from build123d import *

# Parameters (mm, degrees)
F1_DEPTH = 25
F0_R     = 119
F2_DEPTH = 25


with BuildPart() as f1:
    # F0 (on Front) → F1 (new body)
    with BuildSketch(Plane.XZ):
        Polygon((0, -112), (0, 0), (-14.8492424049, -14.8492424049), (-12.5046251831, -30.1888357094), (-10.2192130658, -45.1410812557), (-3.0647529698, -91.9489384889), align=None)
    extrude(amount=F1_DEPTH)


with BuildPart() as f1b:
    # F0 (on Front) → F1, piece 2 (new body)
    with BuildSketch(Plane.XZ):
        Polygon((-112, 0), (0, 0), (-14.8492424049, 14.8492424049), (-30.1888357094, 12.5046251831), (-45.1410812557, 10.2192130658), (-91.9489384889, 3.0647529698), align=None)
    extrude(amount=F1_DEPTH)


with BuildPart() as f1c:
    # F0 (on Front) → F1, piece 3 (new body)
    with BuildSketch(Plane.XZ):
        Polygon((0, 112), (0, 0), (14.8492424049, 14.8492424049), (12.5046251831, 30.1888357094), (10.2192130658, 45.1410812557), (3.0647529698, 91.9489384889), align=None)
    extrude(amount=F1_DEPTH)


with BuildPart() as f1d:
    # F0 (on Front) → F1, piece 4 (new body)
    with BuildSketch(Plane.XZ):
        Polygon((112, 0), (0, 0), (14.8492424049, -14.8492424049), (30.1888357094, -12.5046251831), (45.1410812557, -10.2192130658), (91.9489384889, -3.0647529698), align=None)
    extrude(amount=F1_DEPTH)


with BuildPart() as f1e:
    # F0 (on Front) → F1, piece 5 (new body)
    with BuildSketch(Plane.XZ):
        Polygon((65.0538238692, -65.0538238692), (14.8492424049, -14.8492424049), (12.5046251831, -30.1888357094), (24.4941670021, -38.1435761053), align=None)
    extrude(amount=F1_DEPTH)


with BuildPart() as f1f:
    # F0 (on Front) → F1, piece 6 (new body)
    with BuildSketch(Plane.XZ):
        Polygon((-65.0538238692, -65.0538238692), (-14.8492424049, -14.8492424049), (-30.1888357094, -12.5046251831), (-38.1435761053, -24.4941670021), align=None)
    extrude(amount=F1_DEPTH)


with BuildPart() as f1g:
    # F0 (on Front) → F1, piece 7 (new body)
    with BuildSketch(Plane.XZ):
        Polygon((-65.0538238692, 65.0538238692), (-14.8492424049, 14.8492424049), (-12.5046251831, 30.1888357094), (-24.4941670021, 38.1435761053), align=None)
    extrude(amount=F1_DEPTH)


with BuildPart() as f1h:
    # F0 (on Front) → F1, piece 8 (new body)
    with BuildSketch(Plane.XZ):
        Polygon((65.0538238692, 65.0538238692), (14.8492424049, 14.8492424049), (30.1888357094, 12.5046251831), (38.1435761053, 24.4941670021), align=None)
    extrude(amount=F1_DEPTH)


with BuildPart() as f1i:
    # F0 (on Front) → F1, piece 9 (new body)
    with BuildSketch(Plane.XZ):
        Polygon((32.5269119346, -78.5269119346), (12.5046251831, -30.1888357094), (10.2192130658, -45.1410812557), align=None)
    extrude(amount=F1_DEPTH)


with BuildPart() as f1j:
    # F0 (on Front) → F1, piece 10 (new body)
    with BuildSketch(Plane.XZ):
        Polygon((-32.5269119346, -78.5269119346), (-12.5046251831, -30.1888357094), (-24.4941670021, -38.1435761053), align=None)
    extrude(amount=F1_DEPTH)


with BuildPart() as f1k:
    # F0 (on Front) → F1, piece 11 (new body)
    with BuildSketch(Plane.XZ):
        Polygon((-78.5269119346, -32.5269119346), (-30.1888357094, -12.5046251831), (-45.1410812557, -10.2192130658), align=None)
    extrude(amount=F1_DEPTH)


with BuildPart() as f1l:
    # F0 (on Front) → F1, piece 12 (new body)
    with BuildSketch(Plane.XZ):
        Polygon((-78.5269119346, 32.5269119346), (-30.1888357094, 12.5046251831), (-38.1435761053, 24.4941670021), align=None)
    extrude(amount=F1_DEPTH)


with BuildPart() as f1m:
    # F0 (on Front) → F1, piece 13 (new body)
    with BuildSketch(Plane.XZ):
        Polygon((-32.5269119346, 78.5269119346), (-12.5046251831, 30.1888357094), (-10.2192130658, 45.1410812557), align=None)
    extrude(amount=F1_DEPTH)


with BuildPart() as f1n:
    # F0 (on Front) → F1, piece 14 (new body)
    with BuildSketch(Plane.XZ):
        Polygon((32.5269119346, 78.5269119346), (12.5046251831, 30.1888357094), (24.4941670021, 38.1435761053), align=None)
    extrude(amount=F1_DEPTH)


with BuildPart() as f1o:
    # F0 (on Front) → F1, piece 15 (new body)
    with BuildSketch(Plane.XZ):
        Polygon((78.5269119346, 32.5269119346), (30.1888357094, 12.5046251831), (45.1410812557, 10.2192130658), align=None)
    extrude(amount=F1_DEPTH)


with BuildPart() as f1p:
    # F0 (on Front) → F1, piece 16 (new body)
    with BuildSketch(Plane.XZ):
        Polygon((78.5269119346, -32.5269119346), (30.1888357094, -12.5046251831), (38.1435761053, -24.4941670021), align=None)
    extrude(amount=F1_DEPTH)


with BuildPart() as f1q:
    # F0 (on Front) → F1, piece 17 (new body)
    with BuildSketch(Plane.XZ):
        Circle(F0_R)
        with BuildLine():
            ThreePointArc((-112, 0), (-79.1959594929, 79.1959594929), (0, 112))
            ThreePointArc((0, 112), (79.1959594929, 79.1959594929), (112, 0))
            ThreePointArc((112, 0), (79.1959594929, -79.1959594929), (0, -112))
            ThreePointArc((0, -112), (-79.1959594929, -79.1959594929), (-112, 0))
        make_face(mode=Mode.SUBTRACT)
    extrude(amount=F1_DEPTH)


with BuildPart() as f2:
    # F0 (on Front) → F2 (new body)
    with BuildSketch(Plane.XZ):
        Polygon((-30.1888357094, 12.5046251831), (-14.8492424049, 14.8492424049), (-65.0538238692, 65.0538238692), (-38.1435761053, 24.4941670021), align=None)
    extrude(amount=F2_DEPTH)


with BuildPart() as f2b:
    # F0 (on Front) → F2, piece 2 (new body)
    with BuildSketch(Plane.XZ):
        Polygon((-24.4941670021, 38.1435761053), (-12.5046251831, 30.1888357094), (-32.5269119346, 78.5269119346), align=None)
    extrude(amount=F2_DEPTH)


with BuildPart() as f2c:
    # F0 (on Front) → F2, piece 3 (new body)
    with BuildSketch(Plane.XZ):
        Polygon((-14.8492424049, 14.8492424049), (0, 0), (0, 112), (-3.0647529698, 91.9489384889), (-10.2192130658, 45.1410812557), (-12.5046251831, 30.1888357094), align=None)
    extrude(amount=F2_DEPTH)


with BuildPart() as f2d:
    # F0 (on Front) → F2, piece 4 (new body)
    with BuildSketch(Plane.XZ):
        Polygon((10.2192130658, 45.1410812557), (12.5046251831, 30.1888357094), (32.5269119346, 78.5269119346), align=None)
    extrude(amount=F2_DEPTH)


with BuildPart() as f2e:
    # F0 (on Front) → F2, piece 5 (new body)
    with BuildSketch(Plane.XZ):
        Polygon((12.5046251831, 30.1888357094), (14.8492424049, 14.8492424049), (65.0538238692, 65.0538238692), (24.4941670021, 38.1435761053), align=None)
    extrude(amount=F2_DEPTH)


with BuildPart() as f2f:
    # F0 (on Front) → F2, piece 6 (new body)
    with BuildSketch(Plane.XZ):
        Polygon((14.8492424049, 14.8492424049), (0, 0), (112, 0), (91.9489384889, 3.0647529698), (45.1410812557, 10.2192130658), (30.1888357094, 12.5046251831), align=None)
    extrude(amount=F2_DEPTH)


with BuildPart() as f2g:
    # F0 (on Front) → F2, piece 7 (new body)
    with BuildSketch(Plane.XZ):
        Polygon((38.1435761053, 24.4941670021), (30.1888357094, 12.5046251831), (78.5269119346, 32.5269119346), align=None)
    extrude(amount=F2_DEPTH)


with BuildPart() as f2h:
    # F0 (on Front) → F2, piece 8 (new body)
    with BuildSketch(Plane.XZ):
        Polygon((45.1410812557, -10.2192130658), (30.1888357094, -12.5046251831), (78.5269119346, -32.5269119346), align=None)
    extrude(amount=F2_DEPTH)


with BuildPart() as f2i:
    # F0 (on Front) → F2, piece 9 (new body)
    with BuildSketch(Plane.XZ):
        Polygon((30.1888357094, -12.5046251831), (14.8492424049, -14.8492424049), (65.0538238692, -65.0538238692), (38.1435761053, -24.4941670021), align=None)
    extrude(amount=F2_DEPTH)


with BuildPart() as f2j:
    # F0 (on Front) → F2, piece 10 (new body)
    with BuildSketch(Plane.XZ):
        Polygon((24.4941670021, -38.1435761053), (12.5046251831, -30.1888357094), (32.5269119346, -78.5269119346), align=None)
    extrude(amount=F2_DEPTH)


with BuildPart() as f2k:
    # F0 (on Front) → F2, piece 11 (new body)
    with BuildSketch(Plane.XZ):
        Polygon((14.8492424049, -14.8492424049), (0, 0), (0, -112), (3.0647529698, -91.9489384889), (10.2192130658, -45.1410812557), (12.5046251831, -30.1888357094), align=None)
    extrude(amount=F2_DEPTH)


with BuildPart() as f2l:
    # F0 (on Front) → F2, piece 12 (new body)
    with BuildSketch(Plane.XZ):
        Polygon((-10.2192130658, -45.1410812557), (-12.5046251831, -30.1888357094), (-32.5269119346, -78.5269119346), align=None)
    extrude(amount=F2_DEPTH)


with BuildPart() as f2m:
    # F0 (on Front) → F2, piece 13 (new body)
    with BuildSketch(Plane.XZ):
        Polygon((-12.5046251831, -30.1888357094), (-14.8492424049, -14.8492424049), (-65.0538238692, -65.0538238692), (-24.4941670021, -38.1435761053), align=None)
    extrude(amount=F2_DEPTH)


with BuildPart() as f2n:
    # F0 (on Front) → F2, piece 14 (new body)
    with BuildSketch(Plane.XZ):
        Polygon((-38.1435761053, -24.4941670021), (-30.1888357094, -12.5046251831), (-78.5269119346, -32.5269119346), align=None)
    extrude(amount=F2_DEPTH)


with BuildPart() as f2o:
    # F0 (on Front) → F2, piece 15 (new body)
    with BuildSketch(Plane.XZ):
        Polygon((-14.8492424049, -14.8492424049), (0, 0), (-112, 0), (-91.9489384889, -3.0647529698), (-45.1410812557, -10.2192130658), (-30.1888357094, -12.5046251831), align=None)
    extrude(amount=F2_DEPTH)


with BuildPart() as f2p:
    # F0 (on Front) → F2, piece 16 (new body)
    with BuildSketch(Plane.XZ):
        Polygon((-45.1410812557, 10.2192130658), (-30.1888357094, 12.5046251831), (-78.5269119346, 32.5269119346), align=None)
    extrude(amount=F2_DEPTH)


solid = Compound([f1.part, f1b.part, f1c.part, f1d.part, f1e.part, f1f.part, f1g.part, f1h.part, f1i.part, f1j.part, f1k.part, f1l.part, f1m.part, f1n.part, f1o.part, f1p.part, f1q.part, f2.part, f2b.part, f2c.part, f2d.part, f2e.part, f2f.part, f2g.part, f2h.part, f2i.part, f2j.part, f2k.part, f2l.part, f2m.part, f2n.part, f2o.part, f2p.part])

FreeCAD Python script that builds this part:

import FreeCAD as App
import Part
import Sketcher

V = App.Vector
Q = App.Units.Quantity


def add_polygon(sketch, points):
    """Adds a closed chain of lines whose ends are joined by coincident constraints."""
    first, n = sketch.GeometryCount, len(points)
    for a, b in zip(points, points[1:] + points[:1]):
        sketch.addGeometry(Part.LineSegment(App.Vector(*a, 0), App.Vector(*b, 0)), False)
    for i in range(n):
        sketch.addConstraint(Sketcher.Constraint("Coincident", first + i, 2, first + (i + 1) % n, 1))

doc = App.newDocument("Part")
params = doc.addObject("Spreadsheet::Sheet", "Params")
for row, (alias, value) in enumerate([
    ("sketch1_height", "112 mm"),
    ("sketch1_length", "21 mm"),
    ("pad1_length", "25 mm"),
    ("sketch2_width", "112 mm"),
    ("sketch2_length", "21 mm"),
    ("pad2_length", "25 mm"),
    ("sketch3_height", "112 mm"),
    ("sketch3_length", "21 mm"),
    ("pad3_length", "25 mm"),
    ("sketch4_width", "112 mm"),
    ("sketch4_length", "21 mm"),
    ("pad4_length", "25 mm"),
    ("sketch5_length", "71 mm"),
    ("pad5_length", "25 mm"),
    ("sketch6_length", "71 mm"),
    ("pad6_length", "25 mm"),
    ("sketch7_length", "71 mm"),
    ("pad7_length", "25 mm"),
    ("sketch8_length", "71 mm"),
    ("pad8_length", "25 mm"),
    ("pad9_length", "25 mm"),
    ("pad10_length", "25 mm"),
    ("pad11_length", "25 mm"),
    ("pad12_length", "25 mm"),
    ("pad13_length", "25 mm"),
    ("pad14_length", "25 mm"),
    ("pad15_length", "25 mm"),
    ("pad16_length", "25 mm"),
    ("sketch17_diameter", "238 mm"),
    ("sketch17_diameter2", "224 mm"),
    ("pad17_length", "25 mm"),
    ("sketch18_length", "71 mm"),
    ("pad18_length", "25 mm"),
    ("pad19_length", "25 mm"),
    ("sketch20_height", "112 mm"),
    ("sketch20_length", "21 mm"),
    ("pad20_length", "25 mm"),
    ("pad21_length", "25 mm"),
    ("sketch22_length", "71 mm"),
    ("pad22_length", "25 mm"),
    ("sketch23_width", "112 mm"),
    ("sketch23_length", "21 mm"),
    ("pad23_length", "25 mm"),
    ("pad24_length", "25 mm"),
    ("pad25_length", "25 mm"),
    ("sketch26_length", "71 mm"),
    ("pad26_length", "25 mm"),
    ("pad27_length", "25 mm"),
    ("sketch28_height", "112 mm"),
    ("sketch28_length", "21 mm"),
    ("pad28_length", "25 mm"),
    ("pad29_length", "25 mm"),
    ("sketch30_length", "71 mm"),
    ("pad30_length", "25 mm"),
    ("pad31_length", "25 mm"),
    ("sketch32_width", "112 mm"),
    ("sketch32_length", "21 mm"),
    ("pad32_length", "25 mm"),
    ("pad33_length", "25 mm"),
], start=1):
    params.set(f"A{row}", alias)
    params.set(f"B{row}", "=" + value)
    params.setAlias(f"B{row}", alias)

body = doc.addObject("PartDesign::Body", "Body")

sketch1 = body.newObject("Sketcher::SketchObject", "Sketch")
sketch1.AttachmentSupport = (doc.getObject("XZ_Plane"), [""])
sketch1.MapMode = "FlatFace"
add_polygon(sketch1, [(0, -112), (0, 0), (-15, -15), (-10, -45), (-3, -92)])
sketch1.addConstraint([
    Sketcher.Constraint("Vertical", 0),
    Sketcher.Constraint("Coincident", 0, 2, -1, 1),
    Sketcher.Constraint("Parallel", 2, 3),
    Sketcher.Constraint("Parallel", 3, 4),
    Sketcher.Constraint("DistanceY", 0, 1, 0, 2, 112.0),
    Sketcher.Constraint("Angle", 1, Q("-135 deg")),
    Sketcher.Constraint("Distance", 1, 21.0),
    Sketcher.Constraint("Distance", 2, 30.64364),
    Sketcher.Constraint("Distance", 3, 47.351471),
])
sketch1.setExpression("Constraints[9]", "Params.sketch1_height")
sketch1.setExpression("Constraints[11]", "Params.sketch1_length")
pad1 = body.newObject("PartDesign::Pad", "Pad")
pad1.Profile = sketch1
pad1.setExpression("Length", "Params.pad1_length")
body2 = doc.addObject("PartDesign::Body", "Body001")

sketch2 = body2.newObject("Sketcher::SketchObject", "Sketch001")
sketch2.AttachmentSupport = (doc.getObject("XZ_Plane001"), [""])
sketch2.MapMode = "FlatFace"
add_polygon(sketch2, [(-112, 0), (0, 0), (-15, 15), (-45, 10), (-92, 3)])
sketch2.addConstraint([
    Sketcher.Constraint("Horizontal", 0),
    Sketcher.Constraint("Coincident", 0, 2, -1, 1),
    Sketcher.Constraint("Parallel", 2, 3),
    Sketcher.Constraint("Parallel", 3, 4),
    Sketcher.Constraint("DistanceX", 0, 1, 0, 2, 112.0),
    Sketcher.Constraint("Angle", 1, Q("135 deg")),
    Sketcher.Constraint("Distance", 1, 21.0),
    Sketcher.Constraint("Distance", 2, 30.64364),
    Sketcher.Constraint("Distance", 3, 47.351471),
])
sketch2.setExpression("Constraints[9]", "Params.sketch2_width")
sketch2.setExpression("Constraints[11]", "Params.sketch2_length")
pad2 = body2.newObject("PartDesign::Pad", "Pad001")
pad2.Profile = sketch2
pad2.setExpression("Length", "Params.pad2_length")
body3 = doc.addObject("PartDesign::Body", "Body002")

sketch3 = body3.newObject("Sketcher::SketchObject", "Sketch002")
sketch3.AttachmentSupport = (doc.getObject("XZ_Plane002"), [""])
sketch3.MapMode = "FlatFace"
add_polygon(sketch3, [(0, 112), (0, 0), (15, 15), (10, 45), (3, 92)])
sketch3.addConstraint([
    Sketcher.Constraint("Vertical", 0),
    Sketcher.Constraint("Coincident", 0, 2, -1, 1),
    Sketcher.Constraint("Parallel", 2, 3),
    Sketcher.Constraint("Parallel", 3, 4),
    Sketcher.Constraint("DistanceY", 0, 2, 0, 1, 112.0),
    Sketcher.Constraint("Angle", 1, Q("45 deg")),
    Sketcher.Constraint("Distance", 1, 21.0),
    Sketcher.Constraint("Distance", 2, 30.64364),
    Sketcher.Constraint("Distance", 3, 47.351471),
])
sketch3.setExpression("Constraints[9]", "Params.sketch3_height")
sketch3.setExpression("Constraints[11]", "Params.sketch3_length")
pad3 = body3.newObject("PartDesign::Pad", "Pad002")
pad3.Profile = sketch3
pad3.setExpression("Length", "Params.pad3_length")
body4 = doc.addObject("PartDesign::Body", "Body003")

sketch4 = body4.newObject("Sketcher::SketchObject", "Sketch003")
sketch4.AttachmentSupport = (doc.getObject("XZ_Plane003"), [""])
sketch4.MapMode = "FlatFace"
add_polygon(sketch4, [(112, 0), (0, 0), (15, -15), (45, -10), (92, -3)])
sketch4.addConstraint([
    Sketcher.Constraint("Horizontal", 0),
    Sketcher.Constraint("Coincident", 0, 2, -1, 1),
    Sketcher.Constraint("Parallel", 2, 3),
    Sketcher.Constraint("Parallel", 3, 4),
    Sketcher.Constraint("DistanceX", 0, 2, 0, 1, 112.0),
    Sketcher.Constraint("Angle", 1, Q("-45 deg")),
    Sketcher.Constraint("Distance", 1, 21.0),
    Sketcher.Constraint("Distance", 2, 30.64364),
    Sketcher.Constraint("Distance", 3, 47.351471),
])
sketch4.setExpression("Constraints[9]", "Params.sketch4_width")
sketch4.setExpression("Constraints[11]", "Params.sketch4_length")
pad4 = body4.newObject("PartDesign::Pad", "Pad003")
pad4.Profile = sketch4
pad4.setExpression("Length", "Params.pad4_length")
body5 = doc.addObject("PartDesign::Body", "Body004")

sketch5 = body5.newObject("Sketcher::SketchObject", "Sketch004")
sketch5.AttachmentSupport = (doc.getObject("XZ_Plane004"), [""])
sketch5.MapMode = "FlatFace"
add_polygon(sketch5, [(65, -65), (15, -15), (13, -30)])
sketch5.addConstraint([
    Sketcher.Constraint("Angle", 0, Q("135 deg")),
    Sketcher.Constraint("Distance", 0, 71.0),
    Sketcher.Constraint("DistanceX", 1, 2, 2, 2, 52.549199),
    Sketcher.Constraint("DistanceY", 2, 2, 1, 2, 34.864988),
    Sketcher.Constraint("DistanceX", -1, 1, 0, 2, 14.849242),
    Sketcher.Constraint("DistanceY", 0, 2, -1, 1, 14.849242),
])
sketch5.setExpression("Constraints[4]", "Params.sketch5_length")
pad5 = body5.newObject("PartDesign::Pad", "Pad004")
pad5.Profile = sketch5
pad5.setExpression("Length", "Params.pad5_length")
body6 = doc.addObject("PartDesign::Body", "Body005")

sketch6 = body6.newObject("Sketcher::SketchObject", "Sketch005")
sketch6.AttachmentSupport = (doc.getObject("XZ_Plane005"), [""])
sketch6.MapMode = "FlatFace"
add_polygon(sketch6, [(-65, -65), (-15, -15), (-30, -13)])
sketch6.addConstraint([
    Sketcher.Constraint("Angle", 0, Q("45 deg")),
    Sketcher.Constraint("Distance", 0, 71.0),
    Sketcher.Constraint("DistanceY", 2, 2, 1, 2, 52.549199),
    Sketcher.Constraint("DistanceX", 2, 2, 1, 2, 34.864988),
    Sketcher.Constraint("DistanceX", 0, 2, -1, 1, 14.849242),
    Sketcher.Constraint("DistanceY", 0, 2, -1, 1, 14.849242),
])
sketch6.setExpression("Constraints[4]", "Params.sketch6_length")
pad6 = body6.newObject("PartDesign::Pad", "Pad005")
pad6.Profile = sketch6
pad6.setExpression("Length", "Params.pad6_length")
body7 = doc.addObject("PartDesign::Body", "Body006")

sketch7 = body7.newObject("Sketcher::SketchObject", "Sketch006")
sketch7.AttachmentSupport = (doc.getObject("XZ_Plane006"), [""])
sketch7.MapMode = "FlatFace"
add_polygon(sketch7, [(-65, 65), (-15, 15), (-13, 30)])
sketch7.addConstraint([
    Sketcher.Constraint("Angle", 0, Q("-45 deg")),
    Sketcher.Constraint("Distance", 0, 71.0),
    Sketcher.Constraint("DistanceX", 2, 2, 1, 2, 52.549199),
    Sketcher.Constraint("DistanceY", 1, 2, 2, 2, 34.864988),
    Sketcher.Constraint("DistanceX", 0, 2, -1, 1, 14.849242),
    Sketcher.Constraint("DistanceY", -1, 1, 0, 2, 14.849242),
])
sketch7.setExpression("Constraints[4]", "Params.sketch7_length")
pad7 = body7.newObject("PartDesign::Pad", "Pad006")
pad7.Profile = sketch7
pad7.setExpression("Length", "Params.pad7_length")
body8 = doc.addObject("PartDesign::Body", "Body007")

sketch8 = body8.newObject("Sketcher::SketchObject", "Sketch007")
sketch8.AttachmentSupport = (doc.getObject("XZ_Plane007"), [""])
sketch8.MapMode = "FlatFace"
add_polygon(sketch8, [(65, 65), (15, 15), (30, 13)])
sketch8.addConstraint([
    Sketcher.Constraint("Angle", 0, Q("-135 deg")),
    Sketcher.Constraint("Distance", 0, 71.0),
    Sketcher.Constraint("DistanceY", 1, 2, 2, 2, 52.549199),
    Sketcher.Constraint("DistanceX", 1, 2, 2, 2, 34.864988),
    Sketcher.Constraint("DistanceX", -1, 1, 0, 2, 14.849242),
    Sketcher.Constraint("DistanceY", -1, 1, 0, 2, 14.849242),
])
sketch8.setExpression("Constraints[4]", "Params.sketch8_length")
pad8 = body8.newObject("PartDesign::Pad", "Pad007")
pad8.Profile = sketch8
pad8.setExpression("Length", "Params.pad8_length")
body9 = doc.addObject("PartDesign::Body", "Body008")

sketch9 = body9.newObject("Sketcher::SketchObject", "Sketch008")
sketch9.AttachmentSupport = (doc.getObject("XZ_Plane008"), [""])
sketch9.MapMode = "FlatFace"
add_polygon(sketch9, [(33, -79), (13, -30), (10, -45)])
sketch9.addConstraint([
    Sketcher.Constraint("Angle", 0, Q("112.5 deg")),
    Sketcher.Constraint("Angle", 2, Q("-56.25 deg")),
    Sketcher.Constraint("DistanceX", 1, 2, 2, 2, 22.307699),
    Sketcher.Constraint("DistanceY", 1, 2, -1, 1, 45.141081),
    Sketcher.Constraint("DistanceX", -1, 1, 2, 2, 32.526912),
    Sketcher.Constraint("Distance", 0, 52.320757),
])
pad9 = body9.newObject("PartDesign::Pad", "Pad008")
pad9.Profile = sketch9
pad9.setExpression("Length", "Params.pad9_length")
body10 = doc.addObject("PartDesign::Body", "Body009")

sketch10 = body10.newObject("Sketcher::SketchObject", "Sketch009")
sketch10.AttachmentSupport = (doc.getObject("XZ_Plane009"), [""])
sketch10.MapMode = "FlatFace"
add_polygon(sketch10, [(-33, -79), (-13, -30), (-24, -38)])
sketch10.addConstraint([
    Sketcher.Constraint("Angle", 0, Q("67.5 deg")),
    Sketcher.Constraint("Angle", 2, Q("-101.25 deg")),
    Sketcher.Constraint("DistanceX", 2, 2, -1, 1, 32.526912),
    Sketcher.Constraint("DistanceY", 2, 2, -1, 1, 78.526912),
    Sketcher.Constraint("DistanceX", 1, 2, 0, 2, 11.989542),
    Sketcher.Constraint("DistanceY", 1, 2, 0, 2, 7.95474),
])
pad10 = body10.newObject("PartDesign::Pad", "Pad009")
pad10.Profile = sketch10
pad10.setExpression("Length", "Params.pad10_length")
body11 = doc.addObject("PartDesign::Body", "Body010")

sketch11 = body11.newObject("Sketcher::SketchObject", "Sketch010")
sketch11.AttachmentSupport = (doc.getObject("XZ_Plane010"), [""])
sketch11.MapMode = "FlatFace"
add_polygon(sketch11, [(-79, -33), (-30, -13), (-45, -10)])
sketch11.addConstraint([
    Sketcher.Constraint("Angle", 0, Q("22.5 deg")),
    Sketcher.Constraint("Angle", 2, Q("-146.25 deg")),
    Sketcher.Constraint("DistanceY", 2, 2, 1, 2, 22.307699),
    Sketcher.Constraint("DistanceX", 1, 2, -1, 1, 45.141081),
    Sketcher.Constraint("DistanceY", 2, 2, -1, 1, 32.526912),
    Sketcher.Constraint("Distance", 0, 52.320757),
])
pad11 = body11.newObject("PartDesign::Pad", "Pad010")
pad11.Profile = sketch11
pad11.setExpression("Length", "Params.pad11_length")
body12 = doc.addObject("PartDesign::Body", "Body011")

sketch12 = body12.newObject("Sketcher::SketchObject", "Sketch011")
sketch12.AttachmentSupport = (doc.getObject("XZ_Plane011"), [""])
sketch12.MapMode = "FlatFace"
add_polygon(sketch12, [(-79, 33), (-30, 13), (-38, 24)])
sketch12.addConstraint([
    Sketcher.Constraint("Angle", 0, Q("-22.5 deg")),
    Sketcher.Constraint("Angle", 2, Q("168.75 deg")),
    Sketcher.Constraint("DistanceX", 2, 2, -1, 1, 78.526912),
    Sketcher.Constraint("DistanceY", -1, 1, 2, 2, 32.526912),
    Sketcher.Constraint("DistanceX", 1, 2, 0, 2, 7.95474),
    Sketcher.Constraint("DistanceY", 0, 2, 1, 2, 11.989542),
])
pad12 = body12.newObject("PartDesign::Pad", "Pad011")
pad12.Profile = sketch12
pad12.setExpression("Length", "Params.pad12_length")
body13 = doc.addObject("PartDesign::Body", "Body012")

sketch13 = body13.newObject("Sketcher::SketchObject", "Sketch012")
sketch13.AttachmentSupport = (doc.getObject("XZ_Plane012"), [""])
sketch13.MapMode = "FlatFace"
add_polygon(sketch13, [(-33, 79), (-13, 30), (-10, 45)])
sketch13.addConstraint([
    Sketcher.Constraint("Angle", 0, Q("-67.5 deg")),
    Sketcher.Constraint("Angle", 2, Q("123.75 deg")),
    Sketcher.Constraint("DistanceX", 2, 2, 1, 2, 22.307699),
    Sketcher.Constraint("DistanceY", -1, 1, 1, 2, 45.141081),
    Sketcher.Constraint("DistanceX", 2, 2, -1, 1, 32.526912),
    Sketcher.Constraint("Distance", 0, 52.320757),
])
pad13 = body13.newObject("PartDesign::Pad", "Pad012")
pad13.Profile = sketch13
pad13.setExpression("Length", "Params.pad13_length")
body14 = doc.addObject("PartDesign::Body", "Body013")

sketch14 = body14.newObject("Sketcher::SketchObject", "Sketch013")
sketch14.AttachmentSupport = (doc.getObject("XZ_Plane013"), [""])
sketch14.MapMode = "FlatFace"
add_polygon(sketch14, [(33, 79), (13, 30), (24, 38)])
sketch14.addConstraint([
    Sketcher.Constraint("Angle", 0, Q("-112.5 deg")),
    Sketcher.Constraint("Angle", 2, Q("78.75 deg")),
    Sketcher.Constraint("DistanceX", -1, 1, 2, 2, 32.526912),
    Sketcher.Constraint("DistanceY", -1, 1, 2, 2, 78.526912),
    Sketcher.Constraint("DistanceX", 0, 2, 1, 2, 11.989542),
    Sketcher.Constraint("DistanceY", 0, 2, 1, 2, 7.95474),
])
pad14 = body14.newObject("PartDesign::Pad", "Pad013")
pad14.Profile = sketch14
pad14.setExpression("Length", "Params.pad14_length")
body15 = doc.addObject("PartDesign::Body", "Body014")

sketch15 = body15.newObject("Sketcher::SketchObject", "Sketch014")
sketch15.AttachmentSupport = (doc.getObject("XZ_Plane014"), [""])
sketch15.MapMode = "FlatFace"
add_polygon(sketch15, [(79, 33), (30, 13), (45, 10)])
sketch15.addConstraint([
    Sketcher.Constraint("Angle", 0, Q("-157.5 deg")),
    Sketcher.Constraint("Angle", 2, Q("33.75 deg")),
    Sketcher.Constraint("DistanceY", 1, 2, 2, 2, 22.307699),
    Sketcher.Constraint("DistanceX", -1, 1, 1, 2, 45.141081),
    Sketcher.Constraint("DistanceY", -1, 1, 2, 2, 32.526912),
    Sketcher.Constraint("Distance", 0, 52.320757),
])
pad15 = body15.newObject("PartDesign::Pad", "Pad014")
pad15.Profile = sketch15
pad15.setExpression("Length", "Params.pad15_length")
body16 = doc.addObject("PartDesign::Body", "Body015")

sketch16 = body16.newObject("Sketcher::SketchObject", "Sketch015")
sketch16.AttachmentSupport = (doc.getObject("XZ_Plane015"), [""])
sketch16.MapMode = "FlatFace"
add_polygon(sketch16, [(79, -33), (30, -13), (38, -24)])
sketch16.addConstraint([
    Sketcher.Constraint("Angle", 0, Q("157.5 deg")),
    Sketcher.Constraint("Angle", 2, Q("-11.25 deg")),
    Sketcher.Constraint("DistanceX", -1, 1, 2, 2, 78.526912),
    Sketcher.Constraint("DistanceY", 2, 2, -1, 1, 32.526912),
    Sketcher.Constraint("DistanceX", 0, 2, 1, 2, 7.95474),
    Sketcher.Constraint("DistanceY", 1, 2, 0, 2, 11.989542),
])
pad16 = body16.newObject("PartDesign::Pad", "Pad015")
pad16.Profile = sketch16
pad16.setExpression("Length", "Params.pad16_length")
body17 = doc.addObject("PartDesign::Body", "Body016")

sketch17 = body17.newObject("Sketcher::SketchObject", "Sketch016")
sketch17.AttachmentSupport = (doc.getObject("XZ_Plane016"), [""])
sketch17.MapMode = "FlatFace"
sketch17.addGeometry([
    Part.Circle(V(0, 0, 0), V(0, 0, 1), 119),
    Part.Circle(V(0, 0, 0), V(0, 0, 1), 112),
], False)
sketch17.addConstraint([
    Sketcher.Constraint("Coincident", 0, 3, -1, 1),
    Sketcher.Constraint("Coincident", 1, 3, -1, 1),
    Sketcher.Constraint("Diameter", 0, 238.0),
    Sketcher.Constraint("Diameter", 1, 224.0),
])
sketch17.setExpression("Constraints[2]", "Params.sketch17_diameter")
sketch17.setExpression("Constraints[3]", "Params.sketch17_diameter2")
pad17 = body17.newObject("PartDesign::Pad", "Pad016")
pad17.Profile = sketch17
pad17.setExpression("Length", "Params.pad17_length")
body18 = doc.addObject("PartDesign::Body", "Body017")

sketch18 = body18.newObject("Sketcher::SketchObject", "Sketch017")
sketch18.AttachmentSupport = (doc.getObject("XZ_Plane017"), [""])
sketch18.MapMode = "FlatFace"
add_polygon(sketch18, [(-30, 13), (-15, 15), (-65, 65)])
sketch18.addConstraint([
    Sketcher.Constraint("Angle", 1, Q("135 deg")),
    Sketcher.Constraint("Distance", 1, 71.0),
    Sketcher.Constraint("DistanceY", 2, 2, 1, 2, 52.549199),
    Sketcher.Constraint("DistanceX", 1, 2, 2, 2, 34.864988),
    Sketcher.Constraint("DistanceX", 0, 2, -1, 1, 14.849242),
    Sketcher.Constraint("DistanceY", -1, 1, 0, 2, 14.849242),
])
sketch18.setExpression("Constraints[4]", "Params.sketch18_length")
pad18 = body18.newObject("PartDesign::Pad", "Pad017")
pad18.Profile = sketch18
pad18.setExpression("Length", "Params.pad18_length")
body19 = doc.addObject("PartDesign::Body", "Body018")

sketch19 = body19.newObject("Sketcher::SketchObject", "Sketch018")
sketch19.AttachmentSupport = (doc.getObject("XZ_Plane018"), [""])
sketch19.MapMode = "FlatFace"
add_polygon(sketch19, [(-24, 38), (-13, 30), (-33, 79)])
sketch19.addConstraint([
    Sketcher.Constraint("Angle", 1, Q("112.5 deg")),
    Sketcher.Constraint("Angle", 2, Q("-78.75 deg")),
    Sketcher.Constraint("DistanceX", 1, 2, -1, 1, 32.526912),
    Sketcher.Constraint("DistanceY", -1, 1, 1, 2, 78.526912),
    Sketcher.Constraint("DistanceX", 2, 2, 0, 2, 11.989542),
    Sketcher.Constraint("DistanceY", 0, 2, 2, 2, 7.95474),
])
pad19 = body19.newObject("PartDesign::Pad", "Pad018")
pad19.Profile = sketch19
pad19.setExpression("Length", "Params.pad19_length")
body20 = doc.addObject("PartDesign::Body", "Body019")

sketch20 = body20.newObject("Sketcher::SketchObject", "Sketch019")
sketch20.AttachmentSupport = (doc.getObject("XZ_Plane019"), [""])
sketch20.MapMode = "FlatFace"
add_polygon(sketch20, [(-15, 15), (0, 0), (0, 112), (-3, 92), (-10, 45)])
sketch20.addConstraint([
    Sketcher.Constraint("Vertical", 1),
    Sketcher.Constraint("Coincident", 0, 2, -1, 1),
    Sketcher.Constraint("Parallel", 2, 3),
    Sketcher.Constraint("Parallel", 3, 4),
    Sketcher.Constraint("DistanceY", 1, 1, 1, 2, 112.0),
    Sketcher.Constraint("Angle", 0, Q("-45 deg")),
    Sketcher.Constraint("Distance", 0, 21.0),
    Sketcher.Constraint("Distance", 2, 20.283929),
    Sketcher.Constraint("Distance", 3, 47.351471),
])
sketch20.setExpression("Constraints[9]", "Params.sketch20_height")
sketch20.setExpression("Constraints[11]", "Params.sketch20_length")
pad20 = body20.newObject("PartDesign::Pad", "Pad019")
pad20.Profile = sketch20
pad20.setExpression("Length", "Params.pad20_length")
body21 = doc.addObject("PartDesign::Body", "Body020")

sketch21 = body21.newObject("Sketcher::SketchObject", "Sketch020")
sketch21.AttachmentSupport = (doc.getObject("XZ_Plane020"), [""])
sketch21.MapMode = "FlatFace"
add_polygon(sketch21, [(10, 45), (13, 30), (33, 79)])
sketch21.addConstraint([
    Sketcher.Constraint("Angle", 1, Q("67.5 deg")),
    Sketcher.Constraint("Angle", 2, Q("-123.75 deg")),
    Sketcher.Constraint("DistanceX", 2, 2, 1, 2, 22.307699),
    Sketcher.Constraint("DistanceX", -1, 1, 1, 2, 32.526912),
    Sketcher.Constraint("DistanceY", -1, 1, 1, 2, 78.526912),
    Sketcher.Constraint("Distance", 0, 15.125897),
])
pad21 = body21.newObject("PartDesign::Pad", "Pad020")
pad21.Profile = sketch21
pad21.setExpression("Length", "Params.pad21_length")
body22 = doc.addObject("PartDesign::Body", "Body021")

sketch22 = body22.newObject("Sketcher::SketchObject", "Sketch021")
sketch22.AttachmentSupport = (doc.getObject("XZ_Plane021"), [""])
sketch22.MapMode = "FlatFace"
add_polygon(sketch22, [(13, 30), (15, 15), (65, 65)])
sketch22.addConstraint([
    Sketcher.Constraint("Angle", 1, Q("45 deg")),
    Sketcher.Constraint("Distance", 1, 71.0),
    Sketcher.Constraint("DistanceX", 2, 2, 1, 2, 52.549199),
    Sketcher.Constraint("DistanceY", 2, 2, 1, 2, 34.864988),
    Sketcher.Constraint("DistanceX", -1, 1, 0, 2, 14.849242),
    Sketcher.Constraint("DistanceY", -1, 1, 0, 2, 14.849242),
])
sketch22.setExpression("Constraints[4]", "Params.sketch22_length")
pad22 = body22.newObject("PartDesign::Pad", "Pad021")
pad22.Profile = sketch22
pad22.setExpression("Length", "Params.pad22_length")
body23 = doc.addObject("PartDesign::Body", "Body022")

sketch23 = body23.newObject("Sketcher::SketchObject", "Sketch022")
sketch23.AttachmentSupport = (doc.getObject("XZ_Plane022"), [""])
sketch23.MapMode = "FlatFace"
add_polygon(sketch23, [(15, 15), (0, 0), (112, 0), (92, 3), (45, 10)])
sketch23.addConstraint([
    Sketcher.Constraint("Horizontal", 1),
    Sketcher.Constraint("Coincident", 0, 2, -1, 1),
    Sketcher.Constraint("Parallel", 2, 3),
    Sketcher.Constraint("Parallel", 3, 4),
    Sketcher.Constraint("DistanceX", 1, 1, 1, 2, 112.0),
    Sketcher.Constraint("Angle", 0, Q("-135 deg")),
    Sketcher.Constraint("Distance", 0, 21.0),
    Sketcher.Constraint("Distance", 2, 20.283929),
    Sketcher.Constraint("Distance", 3, 47.351471),
])
sketch23.setExpression("Constraints[9]", "Params.sketch23_width")
sketch23.setExpression("Constraints[11]", "Params.sketch23_length")
pad23 = body23.newObject("PartDesign::Pad", "Pad022")
pad23.Profile = sketch23
pad23.setExpression("Length", "Params.pad23_length")
body24 = doc.addObject("PartDesign::Body", "Body023")

sketch24 = body24.newObject("Sketcher::SketchObject", "Sketch023")
sketch24.AttachmentSupport = (doc.getObject("XZ_Plane023"), [""])
sketch24.MapMode = "FlatFace"
add_polygon(sketch24, [(38, 24), (30, 13), (79, 33)])
sketch24.addConstraint([
    Sketcher.Constraint("Angle", 1, Q("22.5 deg")),
    Sketcher.Constraint("Angle", 2, Q("-168.75 deg")),
    Sketcher.Constraint("DistanceX", -1, 1, 1, 2, 78.526912),
    Sketcher.Constraint("DistanceY", -1, 1, 1, 2, 32.526912),
    Sketcher.Constraint("DistanceX", 0, 2, 2, 2, 7.95474),
    Sketcher.Constraint("DistanceY", 0, 2, 2, 2, 11.989542),
])
pad24 = body24.newObject("PartDesign::Pad", "Pad023")
pad24.Profile = sketch24
pad24.setExpression("Length", "Params.pad24_length")
body25 = doc.addObject("PartDesign::Body", "Body024")

sketch25 = body25.newObject("Sketcher::SketchObject", "Sketch024")
sketch25.AttachmentSupport = (doc.getObject("XZ_Plane024"), [""])
sketch25.MapMode = "FlatFace"
add_polygon(sketch25, [(45, -10), (30, -13), (79, -33)])
sketch25.addConstraint([
    Sketcher.Constraint("Angle", 1, Q("-22.5 deg")),
    Sketcher.Constraint("Angle", 2, Q("146.25 deg")),
    Sketcher.Constraint("DistanceY", 1, 2, 2, 2, 22.307699),
    Sketcher.Constraint("DistanceX", -1, 1, 1, 2, 78.526912),
    Sketcher.Constraint("DistanceY", 1, 2, -1, 1, 32.526912),
    Sketcher.Constraint("Distance", 0, 15.125897),
])
pad25 = body25.newObject("PartDesign::Pad", "Pad024")
pad25.Profile = sketch25
pad25.setExpression("Length", "Params.pad25_length")
body26 = doc.addObject("PartDesign::Body", "Body025")

sketch26 = body26.newObject("Sketcher::SketchObject", "Sketch025")
sketch26.AttachmentSupport = (doc.getObject("XZ_Plane025"), [""])
sketch26.MapMode = "FlatFace"
add_polygon(sketch26, [(30, -13), (15, -15), (65, -65)])
sketch26.addConstraint([
    Sketcher.Constraint("Angle", 1, Q("-45 deg")),
    Sketcher.Constraint("Distance", 1, 71.0),
    Sketcher.Constraint("DistanceY", 1, 2, 2, 2, 52.549199),
    Sketcher.Constraint("DistanceX", 2, 2, 1, 2, 34.864988),
    Sketcher.Constraint("DistanceX", -1, 1, 0, 2, 14.849242),
    Sketcher.Constraint("DistanceY", 0, 2, -1, 1, 14.849242),
])
sketch26.setExpression("Constraints[4]", "Params.sketch26_length")
pad26 = body26.newObject("PartDesign::Pad", "Pad025")
pad26.Profile = sketch26
pad26.setExpression("Length", "Params.pad26_length")
body27 = doc.addObject("PartDesign::Body", "Body026")

sketch27 = body27.newObject("Sketcher::SketchObject", "Sketch026")
sketch27.AttachmentSupport = (doc.getObject("XZ_Plane026"), [""])
sketch27.MapMode = "FlatFace"
add_polygon(sketch27, [(24, -38), (13, -30), (33, -79)])
sketch27.addConstraint([
    Sketcher.Constraint("Angle", 1, Q("-67.5 deg")),
    Sketcher.Constraint("Angle", 2, Q("101.25 deg")),
    Sketcher.Constraint("DistanceX", -1, 1, 1, 2, 32.526912),
    Sketcher.Constraint("DistanceY", 1, 2, -1, 1, 78.526912),
    Sketcher.Constraint("DistanceX", 0, 2, 2, 2, 11.989542),
    Sketcher.Constraint("DistanceY", 2, 2, 0, 2, 7.95474),
])
pad27 = body27.newObject("PartDesign::Pad", "Pad026")
pad27.Profile = sketch27
pad27.setExpression("Length", "Params.pad27_length")
body28 = doc.addObject("PartDesign::Body", "Body027")

sketch28 = body28.newObject("Sketcher::SketchObject", "Sketch027")
sketch28.AttachmentSupport = (doc.getObject("XZ_Plane027"), [""])
sketch28.MapMode = "FlatFace"
add_polygon(sketch28, [(15, -15), (0, 0), (0, -112), (3, -92), (10, -45)])
sketch28.addConstraint([
    Sketcher.Constraint("Vertical", 1),
    Sketcher.Constraint("Coincident", 0, 2, -1, 1),
    Sketcher.Constraint("Parallel", 2, 3),
    Sketcher.Constraint("Parallel", 3, 4),
    Sketcher.Constraint("DistanceY", 1, 2, 1, 1, 112.0),
    Sketcher.Constraint("Angle", 0, Q("135 deg")),
    Sketcher.Constraint("Distance", 0, 21.0),
    Sketcher.Constraint("Distance", 2, 20.283929),
    Sketcher.Constraint("Distance", 3, 47.351471),
])
sketch28.setExpression("Constraints[9]", "Params.sketch28_height")
sketch28.setExpression("Constraints[11]", "Params.sketch28_length")
pad28 = body28.newObject("PartDesign::Pad", "Pad027")
pad28.Profile = sketch28
pad28.setExpression("Length", "Params.pad28_length")
body29 = doc.addObject("PartDesign::Body", "Body028")

sketch29 = body29.newObject("Sketcher::SketchObject", "Sketch028")
sketch29.AttachmentSupport = (doc.getObject("XZ_Plane028"), [""])
sketch29.MapMode = "FlatFace"
add_polygon(sketch29, [(-10, -45), (-13, -30), (-33, -79)])
sketch29.addConstraint([
    Sketcher.Constraint("Angle", 1, Q("-112.5 deg")),
    Sketcher.Constraint("Angle", 2, Q("56.25 deg")),
    Sketcher.Constraint("DistanceX", 1, 2, 2, 2, 22.307699),
    Sketcher.Constraint("DistanceX", 1, 2, -1, 1, 32.526912),
    Sketcher.Constraint("DistanceY", 1, 2, -1, 1, 78.526912),
    Sketcher.Constraint("Distance", 0, 15.125897),
])
pad29 = body29.newObject("PartDesign::Pad", "Pad028")
pad29.Profile = sketch29
pad29.setExpression("Length", "Params.pad29_length")
body30 = doc.addObject("PartDesign::Body", "Body029")

sketch30 = body30.newObject("Sketcher::SketchObject", "Sketch029")
sketch30.AttachmentSupport = (doc.getObject("XZ_Plane029"), [""])
sketch30.MapMode = "FlatFace"
add_polygon(sketch30, [(-13, -30), (-15, -15), (-65, -65)])
sketch30.addConstraint([
    Sketcher.Constraint("Angle", 1, Q("-135 deg")),
    Sketcher.Constraint("Distance", 1, 71.0),
    Sketcher.Constraint("DistanceX", 1, 2, 2, 2, 52.549199),
    Sketcher.Constraint("DistanceY", 1, 2, 2, 2, 34.864988),
    Sketcher.Constraint("DistanceX", 0, 2, -1, 1, 14.849242),
    Sketcher.Constraint("DistanceY", 0, 2, -1, 1, 14.849242),
])
sketch30.setExpression("Constraints[4]", "Params.sketch30_length")
pad30 = body30.newObject("PartDesign::Pad", "Pad029")
pad30.Profile = sketch30
pad30.setExpression("Length", "Params.pad30_length")
body31 = doc.addObject("PartDesign::Body", "Body030")

sketch31 = body31.newObject("Sketcher::SketchObject", "Sketch030")
sketch31.AttachmentSupport = (doc.getObject("XZ_Plane030"), [""])
sketch31.MapMode = "FlatFace"
add_polygon(sketch31, [(-38, -24), (-30, -13), (-79, -33)])
sketch31.addConstraint([
    Sketcher.Constraint("Angle", 1, Q("-157.5 deg")),
    Sketcher.Constraint("Angle", 2, Q("11.25 deg")),
    Sketcher.Constraint("DistanceX", 1, 2, -1, 1, 78.526912),
    Sketcher.Constraint("DistanceY", 1, 2, -1, 1, 32.526912),
    Sketcher.Constraint("DistanceX", 2, 2, 0, 2, 7.95474),
    Sketcher.Constraint("DistanceY", 2, 2, 0, 2, 11.989542),
])
pad31 = body31.newObject("PartDesign::Pad", "Pad030")
pad31.Profile = sketch31
pad31.setExpression("Length", "Params.pad31_length")
body32 = doc.addObject("PartDesign::Body", "Body031")

sketch32 = body32.newObject("Sketcher::SketchObject", "Sketch031")
sketch32.AttachmentSupport = (doc.getObject("XZ_Plane031"), [""])
sketch32.MapMode = "FlatFace"
add_polygon(sketch32, [(-15, -15), (0, 0), (-112, 0), (-92, -3), (-45, -10)])
sketch32.addConstraint([
    Sketcher.Constraint("Horizontal", 1),
    Sketcher.Constraint("Coincident", 0, 2, -1, 1),
    Sketcher.Constraint("Parallel", 2, 3),
    Sketcher.Constraint("Parallel", 3, 4),
    Sketcher.Constraint("DistanceX", 1, 2, 1, 1, 112.0),
    Sketcher.Constraint("Angle", 0, Q("45 deg")),
    Sketcher.Constraint("Distance", 0, 21.0),
    Sketcher.Constraint("Distance", 2, 20.283929),
    Sketcher.Constraint("Distance", 3, 47.351471),
])
sketch32.setExpression("Constraints[9]", "Params.sketch32_width")
sketch32.setExpression("Constraints[11]", "Params.sketch32_length")
pad32 = body32.newObject("PartDesign::Pad", "Pad031")
pad32.Profile = sketch32
pad32.setExpression("Length", "Params.pad32_length")
body33 = doc.addObject("PartDesign::Body", "Body032")

sketch33 = body33.newObject("Sketcher::SketchObject", "Sketch032")
sketch33.AttachmentSupport = (doc.getObject("XZ_Plane032"), [""])
sketch33.MapMode = "FlatFace"
add_polygon(sketch33, [(-45, 10), (-30, 13), (-79, 33)])
sketch33.addConstraint([
    Sketcher.Constraint("Angle", 1, Q("157.5 deg")),
    Sketcher.Constraint("Angle", 2, Q("-33.75 deg")),
    Sketcher.Constraint("DistanceY", 2, 2, 1, 2, 22.307699),
    Sketcher.Constraint("DistanceX", 1, 2, -1, 1, 78.526912),
    Sketcher.Constraint("DistanceY", -1, 1, 1, 2, 32.526912),
    Sketcher.Constraint("Distance", 0, 15.125897),
])
pad33 = body33.newObject("PartDesign::Pad", "Pad032")
pad33.Profile = sketch33
pad33.setExpression("Length", "Params.pad33_length")

doc.recompute()
